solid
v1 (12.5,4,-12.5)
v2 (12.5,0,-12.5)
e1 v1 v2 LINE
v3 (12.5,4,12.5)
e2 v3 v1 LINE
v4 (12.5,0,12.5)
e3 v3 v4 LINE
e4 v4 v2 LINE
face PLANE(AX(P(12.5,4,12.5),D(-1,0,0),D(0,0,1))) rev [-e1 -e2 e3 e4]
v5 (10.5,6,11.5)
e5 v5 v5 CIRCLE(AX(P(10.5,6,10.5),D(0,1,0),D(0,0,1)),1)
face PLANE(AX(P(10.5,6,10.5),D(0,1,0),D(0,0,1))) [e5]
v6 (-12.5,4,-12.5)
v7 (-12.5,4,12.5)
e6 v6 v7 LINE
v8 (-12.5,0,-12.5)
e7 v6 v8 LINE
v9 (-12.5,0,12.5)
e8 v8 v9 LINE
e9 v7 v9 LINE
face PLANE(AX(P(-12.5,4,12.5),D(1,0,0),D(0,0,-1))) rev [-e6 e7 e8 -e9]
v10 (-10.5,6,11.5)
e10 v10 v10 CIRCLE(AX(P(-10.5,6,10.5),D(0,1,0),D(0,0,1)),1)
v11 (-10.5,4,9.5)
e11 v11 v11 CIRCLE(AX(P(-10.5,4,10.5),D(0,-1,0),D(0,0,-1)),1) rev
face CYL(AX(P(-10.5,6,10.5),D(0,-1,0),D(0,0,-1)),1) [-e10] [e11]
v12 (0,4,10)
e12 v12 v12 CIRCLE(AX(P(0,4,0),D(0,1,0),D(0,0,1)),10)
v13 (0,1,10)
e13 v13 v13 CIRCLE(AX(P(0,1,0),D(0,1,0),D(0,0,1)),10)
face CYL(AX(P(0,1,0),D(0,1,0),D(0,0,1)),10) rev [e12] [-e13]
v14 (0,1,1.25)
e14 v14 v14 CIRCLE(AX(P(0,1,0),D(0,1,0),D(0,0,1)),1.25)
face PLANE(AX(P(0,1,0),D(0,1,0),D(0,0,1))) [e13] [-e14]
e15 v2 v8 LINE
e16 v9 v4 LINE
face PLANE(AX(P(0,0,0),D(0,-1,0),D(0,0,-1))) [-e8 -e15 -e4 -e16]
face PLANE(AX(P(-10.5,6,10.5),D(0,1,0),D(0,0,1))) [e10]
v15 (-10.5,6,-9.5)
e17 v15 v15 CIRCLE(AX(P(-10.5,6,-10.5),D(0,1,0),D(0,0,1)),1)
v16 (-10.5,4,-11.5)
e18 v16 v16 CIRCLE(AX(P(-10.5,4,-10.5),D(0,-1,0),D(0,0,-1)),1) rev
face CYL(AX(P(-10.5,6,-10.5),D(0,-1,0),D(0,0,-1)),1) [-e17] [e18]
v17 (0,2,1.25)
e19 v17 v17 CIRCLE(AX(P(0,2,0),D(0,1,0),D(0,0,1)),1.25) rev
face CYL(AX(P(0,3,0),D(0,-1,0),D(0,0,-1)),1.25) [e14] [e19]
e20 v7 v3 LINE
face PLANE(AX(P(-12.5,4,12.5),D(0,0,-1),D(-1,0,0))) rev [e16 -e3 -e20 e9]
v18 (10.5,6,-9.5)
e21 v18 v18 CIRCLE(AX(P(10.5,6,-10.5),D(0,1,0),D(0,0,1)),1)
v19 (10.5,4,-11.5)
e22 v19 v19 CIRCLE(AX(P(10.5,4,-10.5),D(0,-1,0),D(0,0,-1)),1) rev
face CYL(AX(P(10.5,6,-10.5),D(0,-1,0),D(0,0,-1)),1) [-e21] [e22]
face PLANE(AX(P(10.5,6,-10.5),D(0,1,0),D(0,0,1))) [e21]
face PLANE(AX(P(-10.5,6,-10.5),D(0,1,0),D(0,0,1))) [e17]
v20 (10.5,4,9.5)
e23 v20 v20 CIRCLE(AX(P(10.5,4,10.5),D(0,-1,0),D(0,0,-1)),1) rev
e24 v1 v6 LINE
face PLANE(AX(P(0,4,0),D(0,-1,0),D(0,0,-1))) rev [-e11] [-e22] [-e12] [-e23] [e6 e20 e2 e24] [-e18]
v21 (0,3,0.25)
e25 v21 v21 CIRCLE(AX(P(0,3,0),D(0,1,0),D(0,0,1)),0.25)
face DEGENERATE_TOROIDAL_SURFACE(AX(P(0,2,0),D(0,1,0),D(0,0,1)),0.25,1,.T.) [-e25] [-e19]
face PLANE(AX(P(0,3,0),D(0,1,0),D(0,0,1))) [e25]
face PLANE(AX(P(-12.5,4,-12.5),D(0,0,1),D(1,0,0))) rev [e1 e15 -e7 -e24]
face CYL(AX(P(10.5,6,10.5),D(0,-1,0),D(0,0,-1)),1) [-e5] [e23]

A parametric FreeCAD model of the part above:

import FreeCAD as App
import Part
import Sketcher


def edges_at(feature, points):
    """Names of the edges that pass closest to the given points."""
    edges = feature.Shape.Edges
    near = lambda p: min(range(len(edges)), key=lambda i: edges[i].distToShape(Part.Vertex(*p))[0])
    return sorted({f"Edge{near(p) + 1}" for p in points})

doc = App.newDocument("Part")
body = doc.addObject("PartDesign::Body", "Body")

sketch1 = body.newObject("Sketcher::SketchObject", "Sketch")
sketch1.AttachmentSupport = (doc.getObject("XZ_Plane"), [""])
sketch1.MapMode = "FlatFace"
sketch1.addGeometry(Part.LineSegment(App.Vector(-12, -12, 0), App.Vector(-12, 12, 0)), False)
sketch1.addGeometry(Part.LineSegment(App.Vector(-12, 12, 0), App.Vector(12, 12, 0)), False)
sketch1.addGeometry(Part.LineSegment(App.Vector(12, 12, 0), App.Vector(12, -12, 0)), False)
sketch1.addGeometry(Part.LineSegment(App.Vector(12, -12, 0), App.Vector(-12, -12, 0)), False)
sketch1.addConstraint(Sketcher.Constraint("Coincident", 0, 2, 1, 1))
sketch1.addConstraint(Sketcher.Constraint("Coincident", 1, 2, 2, 1))
sketch1.addConstraint(Sketcher.Constraint("Coincident", 2, 2, 3, 1))
sketch1.addConstraint(Sketcher.Constraint("Coincident", 3, 2, 0, 1))
sketch1.addConstraint(Sketcher.Constraint("Vertical", 0))
sketch1.addConstraint(Sketcher.Constraint("Horizontal", 1))
sketch1.addConstraint(Sketcher.Constraint("Vertical", 2))
sketch1.addConstraint(Sketcher.Constraint("Horizontal", 3))
sketch1.addConstraint(Sketcher.Constraint("Symmetric", 0, 2, 2, 2, -1, 1))
sketch1.addConstraint(Sketcher.Constraint("Equal", 3, 0))
sketch1.addConstraint(Sketcher.Constraint("DistanceX", 1, 1, 1, 2, 25.0))
pad1 = body.newObject("PartDesign::Pad", "Pad")
pad1.Profile = sketch1
pad1.Length = 4
pad1.Reversed = True

sketch2 = body.newObject("Sketcher::SketchObject", "Sketch001")
sketch2.AttachmentSupport = (doc.getObject("XZ_Plane"), [""])
sketch2.MapMode = "FlatFace"
sketch2.AttachmentOffset = App.Placement(App.Vector(0, 0, -4), App.Rotation())
sketch2.addGeometry(Part.Circle(App.Vector(0, 0, 0), App.Vector(0, 0, 1), 10), False)
sketch2.addConstraint(Sketcher.Constraint("Coincident", 0, 3, -1, 1))
sketch2.addConstraint(Sketcher.Constraint("Diameter", 0, 20.0))
pocket1 = body.newObject("PartDesign::Pocket", "Pocket")
pocket1.Profile = sketch2
pocket1.Length = 3
pocket1.Reversed = True

sketch3 = body.newObject("Sketcher::SketchObject", "Sketch002")
sketch3.AttachmentSupport = (doc.getObject("XZ_Plane"), [""])
sketch3.MapMode = "FlatFace"
sketch3.AttachmentOffset = App.Placement(App.Vector(0, 0, -1), App.Rotation())
sketch3.addGeometry(Part.Circle(App.Vector(0, 0, 0), App.Vector(0, 0, 1), 1.2), False)
sketch3.addConstraint(Sketcher.Constraint("Coincident", 0, 3, -1, 1))
sketch3.addConstraint(Sketcher.Constraint("Diameter", 0, 2.5))
pad2 = body.newObject("PartDesign::Pad", "Pad001")
pad2.Profile = sketch3
pad2.Length = 2
pad2.Reversed = True
doc.recompute()

fillet = body.newObject("PartDesign::Fillet", "Fillet")
fillet.Base = (pad2, edges_at(pad2, [(-1.25, 3, 0)]))
fillet.Radius = 1

sketch4 = body.newObject("Sketcher::SketchObject", "Sketch003")
sketch4.AttachmentSupport = (doc.getObject("XZ_Plane"), [""])
sketch4.MapMode = "FlatFace"
sketch4.AttachmentOffset = App.Placement(App.Vector(0, 0, -4), App.Rotation())
sketch4.addGeometry(Part.Circle(App.Vector(-10.5, -10.5, 0), App.Vector(0, 0, 1), 1), False)
sketch4.addGeometry(Part.Circle(App.Vector(10.5, -10.5, 0), App.Vector(0, 0, 1), 1), False)
sketch4.addGeometry(Part.Circle(App.Vector(10.5, 10.5, 0), App.Vector(0, 0, 1), 1), False)
sketch4.addGeometry(Part.Circle(App.Vector(-10.5, 10.5, 0), App.Vector(0, 0, 1), 1), False)
sketch4.addConstraint(Sketcher.Constraint("Equal", 0, 1))
sketch4.addConstraint(Sketcher.Constraint("Equal", 1, 2))
sketch4.addConstraint(Sketcher.Constraint("Equal", 2, 3))
sketch4.addConstraint(Sketcher.Constraint("Symmetric", 0, 3, 2, 3, -1, 1))
sketch4.addConstraint(Sketcher.Constraint("Symmetric", 1, 3, 3, 3, -1, 1))
sketch4.addConstraint(Sketcher.Constraint("Symmetric", 0, 3, 1, 3, -2))
sketch4.addConstraint(Sketcher.Constraint("Diameter", 0, 2.0))
sketch4.addConstraint(Sketcher.Constraint("DistanceX", 0, 3, 1, 3, 21.0))
sketch4.addConstraint(Sketcher.Constraint("DistanceY", 1, 3, 2, 3, 21.0))
pad3 = body.newObject("PartDesign::Pad", "Pad002")
pad3.Profile = sketch4
pad3.Length = 2
pad3.Reversed = True

doc.recompute()
